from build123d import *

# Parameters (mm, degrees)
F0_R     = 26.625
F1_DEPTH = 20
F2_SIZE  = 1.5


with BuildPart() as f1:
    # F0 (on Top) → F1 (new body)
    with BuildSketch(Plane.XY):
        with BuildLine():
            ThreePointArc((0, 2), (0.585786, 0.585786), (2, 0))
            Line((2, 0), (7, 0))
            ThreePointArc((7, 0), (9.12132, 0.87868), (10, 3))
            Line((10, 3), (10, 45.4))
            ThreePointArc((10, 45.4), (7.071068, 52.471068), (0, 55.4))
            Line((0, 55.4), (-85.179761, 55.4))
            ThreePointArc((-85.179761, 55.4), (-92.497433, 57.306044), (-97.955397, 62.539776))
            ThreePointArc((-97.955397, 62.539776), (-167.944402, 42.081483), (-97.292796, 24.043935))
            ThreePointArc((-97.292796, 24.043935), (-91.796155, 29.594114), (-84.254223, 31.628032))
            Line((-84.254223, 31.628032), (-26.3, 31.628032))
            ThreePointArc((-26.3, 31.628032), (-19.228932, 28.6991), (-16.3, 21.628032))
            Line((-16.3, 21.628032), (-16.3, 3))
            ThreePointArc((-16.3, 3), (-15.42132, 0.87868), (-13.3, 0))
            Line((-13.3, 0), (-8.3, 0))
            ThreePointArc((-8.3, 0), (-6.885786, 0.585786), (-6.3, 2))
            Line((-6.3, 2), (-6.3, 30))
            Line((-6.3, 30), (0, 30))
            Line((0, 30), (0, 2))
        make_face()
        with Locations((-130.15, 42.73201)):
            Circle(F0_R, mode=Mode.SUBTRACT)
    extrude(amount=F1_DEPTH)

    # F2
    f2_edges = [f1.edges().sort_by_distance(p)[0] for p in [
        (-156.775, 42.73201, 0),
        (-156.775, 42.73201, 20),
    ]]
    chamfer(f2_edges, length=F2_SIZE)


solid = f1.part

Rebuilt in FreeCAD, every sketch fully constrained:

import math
import FreeCAD as App
import Part
import Sketcher

V = App.Vector
Q = App.Units.Quantity


def edges_at(feature, points):
    """Names of the edges that pass closest to the given points."""
    edges = feature.Shape.Edges
    near = lambda p: min(range(len(edges)), key=lambda i: edges[i].distToShape(Part.Vertex(*p))[0])
    return sorted({f"Edge{near(p) + 1}" for p in points})

doc = App.newDocument("Part")
body = doc.addObject("PartDesign::Body", "Body")

# Sketch on XY plane
sketch1 = body.newObject("Sketcher::SketchObject", "Sketch")
sketch1.AttachmentSupport = (doc.getObject("XY_Plane"), [""])
sketch1.MapMode = "FlatFace"
sketch1.addGeometry([
    Part.ArcOfCircle(Part.Circle(V(2, 2, 0), V(0, 0, 1), 2), math.radians(180), math.radians(270)),  # 0
    Part.LineSegment(V(2, 0, 0), V(7, 0, 0)),  # 1
    Part.ArcOfCircle(Part.Circle(V(7, 3, 0), V(0, 0, 1), 3), math.radians(-90), math.radians(0)),  # 2
    Part.LineSegment(V(10, 3, 0), V(10, 45.4, 0)),  # 3
    Part.ArcOfCircle(Part.Circle(V(0, 45.4, 0), V(0, 0, 1), 10), math.radians(0), math.radians(90)),  # 4
    Part.LineSegment(V(0, 55.4, 0), V(-85.2, 55.4, 0)),  # 5
    Part.ArcOfCircle(Part.Circle(V(-85.2, 70.4, 0), V(0, 0, 1), 15), math.radians(-148), math.radians(-90)),  # 6
    Part.ArcOfCircle(Part.Circle(V(-130.1, 42.7, 0), V(0, 0, 1), 37.8), math.radians(32), math.radians(330)),  # 7
    Part.ArcOfCircle(Part.Circle(V(-84.3, 16.6, 0), V(0, 0, 1), 15), math.radians(90), math.radians(150)),  # 8
    Part.LineSegment(V(-84.3, 31.6, 0), V(-26.3, 31.6, 0)),  # 9
    Part.ArcOfCircle(Part.Circle(V(-26.3, 21.6, 0), V(0, 0, 1), 10), math.radians(0), math.radians(90)),  # 10
    Part.LineSegment(V(-16.3, 21.6, 0), V(-16.3, 3, 0)),  # 11
    Part.ArcOfCircle(Part.Circle(V(-13.3, 3, 0), V(0, 0, 1), 3), math.radians(-180), math.radians(-90)),  # 12
    Part.LineSegment(V(-13.3, 0, 0), V(-8.3, 0, 0)),  # 13
    Part.ArcOfCircle(Part.Circle(V(-8.3, 2, 0), V(0, 0, 1), 2), math.radians(-90), math.radians(0)),  # 14
    Part.LineSegment(V(-6.3, 2, 0), V(-6.3, 30, 0)),  # 15
    Part.LineSegment(V(-6.3, 30, 0), V(0, 30, 0)),  # 16
    Part.LineSegment(V(0, 30, 0), V(0, 2, 0)),  # 17
    Part.Circle(V(-130.2, 42.7, 0), V(0, 0, 1), 26.6),  # 18
], False)
sketch1.addConstraint([
    Sketcher.Constraint("Tangent", 0, 2, 1, 1),
    Sketcher.Constraint("Tangent", 1, 2, 2, 1),
    Sketcher.Constraint("Tangent", 2, 2, 3, 1),
    Sketcher.Constraint("Tangent", 3, 2, 4, 1),
    Sketcher.Constraint("Tangent", 4, 2, 5, 1),
    Sketcher.Constraint("Tangent", 5, 2, 6, 2),
    Sketcher.Constraint("Tangent", 6, 1, 7, 1),
    Sketcher.Constraint("Tangent", 7, 2, 8, 2),
    Sketcher.Constraint("Tangent", 8, 1, 9, 1),
    Sketcher.Constraint("Tangent", 9, 2, 10, 2),
    Sketcher.Constraint("Tangent", 10, 1, 11, 1),
    Sketcher.Constraint("Tangent", 11, 2, 12, 1),
    Sketcher.Constraint("Tangent", 12, 2, 13, 1),
    Sketcher.Constraint("Tangent", 13, 2, 14, 1),
    Sketcher.Constraint("Tangent", 14, 2, 15, 1),
    Sketcher.Constraint("Coincident", 15, 2, 16, 1),
    Sketcher.Constraint("Coincident", 16, 2, 17, 1),
    Sketcher.Constraint("Tangent", 17, 2, 0, 1),
    Sketcher.Constraint("Horizontal", 1),
    Sketcher.Constraint("Vertical", 3),
    Sketcher.Constraint("Horizontal", 5),
    Sketcher.Constraint("Horizontal", 9),
    Sketcher.Constraint("Vertical", 11),
    Sketcher.Constraint("Horizontal", 13),
    Sketcher.Constraint("Vertical", 15),
    Sketcher.Constraint("Horizontal", 16),
    Sketcher.Constraint("Vertical", 17),
    Sketcher.Constraint("Coincident", 18, 3, 7, 3),
    Sketcher.Constraint("Equal", 6, 8),
    Sketcher.Constraint("Equal", 4, 10),
    Sketcher.Constraint("Equal", 2, 12),
    Sketcher.Constraint("Equal", 0, 14),
    Sketcher.Constraint("PointOnObject", 4, 3, -2),
    Sketcher.Constraint("PointOnObject", 0, 2, -1),
    Sketcher.Constraint("PointOnObject", 12, 2, -1),
    Sketcher.Constraint("PointOnObject", 16, 2, -2),
    Sketcher.Constraint("Equal", 1, 13),
    Sketcher.Constraint("Radius", 0, Q("1.999999 mm")),
    Sketcher.Constraint("Radius", 2, Q("3.000001 mm")),
    Sketcher.Constraint("Radius", 4, Q("9.999999 mm")),
    Sketcher.Constraint("Radius", 7, Q("37.8 mm")),
    Sketcher.Constraint("Diameter", 18, Q("53.25 mm")),
    Sketcher.Constraint("DistanceY", 15, 1, 15, 2, Q("28 mm")),
    Sketcher.Constraint("DistanceX", 16, 1, 16, 2, Q("6.3 mm")),
    Sketcher.Constraint("DistanceY", 3, 1, 3, 2, Q("42.4 mm")),
    Sketcher.Constraint("DistanceY", 0, 3, 6, 3, Q("68.399999 mm")),
    Sketcher.Constraint("DistanceX", 7, 3, -1, 1, Q("130.15 mm")),
    Sketcher.Constraint("DistanceX", 5, 2, 5, 1, Q("85.179761 mm")),
    Sketcher.Constraint("DistanceY", 8, 3, 7, 2, Q("7.415899 mm")),
])
pad1 = body.newObject("PartDesign::Pad", "Pad")
pad1.Profile = sketch1
pad1.Length = 20
doc.recompute()

chamfer = body.newObject("PartDesign::Chamfer", "Chamfer")
chamfer.Base = (pad1, edges_at(pad1, [(-156.775, 42.732, 0), (-156.775, 42.732, 20)]))
chamfer.Size = 1.5

doc.recompute()
